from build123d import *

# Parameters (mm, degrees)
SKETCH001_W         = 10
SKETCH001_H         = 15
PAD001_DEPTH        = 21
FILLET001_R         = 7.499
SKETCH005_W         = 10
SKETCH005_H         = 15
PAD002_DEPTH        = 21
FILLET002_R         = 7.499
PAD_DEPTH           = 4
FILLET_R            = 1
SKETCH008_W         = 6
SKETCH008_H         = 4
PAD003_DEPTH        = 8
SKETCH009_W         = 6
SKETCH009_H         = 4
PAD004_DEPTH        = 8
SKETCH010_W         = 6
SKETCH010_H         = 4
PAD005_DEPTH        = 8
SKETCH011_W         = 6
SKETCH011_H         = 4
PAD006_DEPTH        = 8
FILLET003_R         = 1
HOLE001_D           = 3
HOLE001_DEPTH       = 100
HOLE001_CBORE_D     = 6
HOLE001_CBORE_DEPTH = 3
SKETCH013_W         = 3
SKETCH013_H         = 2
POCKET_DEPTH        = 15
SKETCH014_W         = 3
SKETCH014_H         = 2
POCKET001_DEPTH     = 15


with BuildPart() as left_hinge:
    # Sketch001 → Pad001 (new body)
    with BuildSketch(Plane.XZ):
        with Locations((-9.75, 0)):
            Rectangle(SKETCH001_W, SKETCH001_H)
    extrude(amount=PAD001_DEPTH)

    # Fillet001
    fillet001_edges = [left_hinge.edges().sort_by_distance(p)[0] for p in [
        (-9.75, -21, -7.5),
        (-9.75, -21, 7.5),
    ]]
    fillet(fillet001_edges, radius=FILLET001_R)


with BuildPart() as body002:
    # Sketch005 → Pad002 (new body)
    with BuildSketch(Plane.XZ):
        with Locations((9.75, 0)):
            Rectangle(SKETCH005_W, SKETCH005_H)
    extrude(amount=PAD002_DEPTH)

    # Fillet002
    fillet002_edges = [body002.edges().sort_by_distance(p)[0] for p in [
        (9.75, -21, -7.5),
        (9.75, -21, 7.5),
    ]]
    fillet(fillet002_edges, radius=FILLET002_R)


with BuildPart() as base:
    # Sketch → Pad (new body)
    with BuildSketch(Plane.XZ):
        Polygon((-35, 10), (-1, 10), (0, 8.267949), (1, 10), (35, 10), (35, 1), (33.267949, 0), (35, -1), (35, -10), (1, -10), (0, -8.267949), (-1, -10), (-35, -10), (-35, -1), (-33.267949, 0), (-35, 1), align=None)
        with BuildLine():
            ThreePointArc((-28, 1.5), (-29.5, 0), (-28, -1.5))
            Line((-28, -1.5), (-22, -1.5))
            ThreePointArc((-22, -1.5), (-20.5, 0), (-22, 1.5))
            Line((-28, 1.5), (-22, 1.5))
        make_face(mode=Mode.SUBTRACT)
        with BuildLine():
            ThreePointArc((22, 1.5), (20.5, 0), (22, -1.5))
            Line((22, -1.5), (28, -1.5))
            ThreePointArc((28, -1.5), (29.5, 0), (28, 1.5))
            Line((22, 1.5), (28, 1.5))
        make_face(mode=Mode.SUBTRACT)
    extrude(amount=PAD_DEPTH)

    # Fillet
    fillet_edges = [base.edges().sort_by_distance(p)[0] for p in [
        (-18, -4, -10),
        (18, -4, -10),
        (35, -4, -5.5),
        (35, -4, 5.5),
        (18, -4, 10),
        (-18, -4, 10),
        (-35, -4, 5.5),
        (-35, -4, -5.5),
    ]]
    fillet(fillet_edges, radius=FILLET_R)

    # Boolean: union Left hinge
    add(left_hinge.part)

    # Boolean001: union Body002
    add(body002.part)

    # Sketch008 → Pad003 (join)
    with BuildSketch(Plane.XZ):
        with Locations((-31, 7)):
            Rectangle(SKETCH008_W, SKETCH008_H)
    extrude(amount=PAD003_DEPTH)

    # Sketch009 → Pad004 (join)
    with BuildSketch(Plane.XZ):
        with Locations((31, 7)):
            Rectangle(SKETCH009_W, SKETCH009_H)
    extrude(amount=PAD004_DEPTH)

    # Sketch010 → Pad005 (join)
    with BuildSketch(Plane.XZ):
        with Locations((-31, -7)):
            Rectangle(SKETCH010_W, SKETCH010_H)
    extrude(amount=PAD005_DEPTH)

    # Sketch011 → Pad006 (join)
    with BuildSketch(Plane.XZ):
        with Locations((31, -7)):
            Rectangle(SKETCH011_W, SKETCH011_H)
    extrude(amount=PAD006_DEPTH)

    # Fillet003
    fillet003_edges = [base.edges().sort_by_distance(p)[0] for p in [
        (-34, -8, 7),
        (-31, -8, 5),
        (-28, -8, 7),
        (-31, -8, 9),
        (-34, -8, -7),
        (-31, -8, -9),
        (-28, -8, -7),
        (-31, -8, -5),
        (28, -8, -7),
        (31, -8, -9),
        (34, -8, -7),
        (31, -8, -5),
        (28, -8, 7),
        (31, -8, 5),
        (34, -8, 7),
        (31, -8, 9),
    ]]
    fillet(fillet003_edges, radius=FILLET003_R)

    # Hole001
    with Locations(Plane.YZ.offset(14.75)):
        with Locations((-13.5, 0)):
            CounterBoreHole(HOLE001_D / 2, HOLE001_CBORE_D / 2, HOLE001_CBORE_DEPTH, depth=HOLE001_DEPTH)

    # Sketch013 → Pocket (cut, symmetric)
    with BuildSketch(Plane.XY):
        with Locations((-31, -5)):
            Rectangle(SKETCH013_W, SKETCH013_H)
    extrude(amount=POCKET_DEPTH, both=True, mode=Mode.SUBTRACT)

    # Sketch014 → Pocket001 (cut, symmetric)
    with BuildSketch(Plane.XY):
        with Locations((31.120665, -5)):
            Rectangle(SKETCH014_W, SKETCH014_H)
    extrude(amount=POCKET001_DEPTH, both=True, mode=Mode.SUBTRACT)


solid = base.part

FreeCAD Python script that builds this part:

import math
import FreeCAD as App
import Part
import Sketcher
Q = App.Units.Quantity


def edges_at(feature, points):
    """Names of the edges that pass closest to the given points."""
    edges = feature.Shape.Edges
    near = lambda p: min(range(len(edges)), key=lambda i: edges[i].distToShape(Part.Vertex(*p))[0])
    return sorted({f"Edge{near(p) + 1}" for p in points})


def add_polygon(sketch, points):
    """Adds a closed chain of lines whose ends are joined by coincident constraints."""
    first, n = sketch.GeometryCount, len(points)
    for a, b in zip(points, points[1:] + points[:1]):
        sketch.addGeometry(Part.LineSegment(App.Vector(*a, 0), App.Vector(*b, 0)), False)
    for i in range(n):
        sketch.addConstraint(Sketcher.Constraint("Coincident", first + i, 2, first + (i + 1) % n, 1))

doc = App.newDocument("Part")
body = doc.addObject("PartDesign::Body", "Body")

sketch1 = body.newObject("Sketcher::SketchObject", "Sketch")
sketch1.AttachmentSupport = (doc.getObject("XZ_Plane"), [""])
sketch1.MapMode = "FlatFace"
add_polygon(sketch1, [(-14.75, 7.5), (-14.75, -7.5), (-4.75, -7.5), (-4.75, 7.5)])
sketch1.addConstraint([
    Sketcher.Constraint("Vertical", 0),
    Sketcher.Constraint("Horizontal", 1),
    Sketcher.Constraint("Vertical", 2),
    Sketcher.Constraint("Horizontal", 3),
    Sketcher.Constraint("DistanceX", 1, 1, 1, 2, Q("10 mm")),
    Sketcher.Constraint("DistanceY", 0, 2, 0, 1, Q("15 mm")),
    Sketcher.Constraint("DistanceY", 0, 2, -1, 1, Q("7.5 mm")),
    Sketcher.Constraint("DistanceX", 0, 2, -1, 1, Q("14.75 mm")),
])
pad1 = body.newObject("PartDesign::Pad", "Pad")
pad1.Profile = sketch1
pad1.Length = 21
doc.recompute()

fillet = body.newObject("PartDesign::Fillet", "Fillet")
fillet.Base = (pad1, edges_at(pad1, [(-9.75, -21, -7.5), (-9.75, -21, 7.5)]))
fillet.Radius = 7.499
body2 = doc.addObject("PartDesign::Body", "Body001")

sketch2 = body2.newObject("Sketcher::SketchObject", "Sketch001")
sketch2.AttachmentSupport = (doc.getObject("XZ_Plane001"), [""])
sketch2.MapMode = "FlatFace"
add_polygon(sketch2, [(4.75, 7.5), (4.75, -7.5), (14.75, -7.5), (14.75, 7.5)])
sketch2.addConstraint([
    Sketcher.Constraint("Vertical", 0),
    Sketcher.Constraint("Horizontal", 1),
    Sketcher.Constraint("Vertical", 2),
    Sketcher.Constraint("Horizontal", 3),
    Sketcher.Constraint("DistanceX", 1, 1, 1, 2, Q("10 mm")),
    Sketcher.Constraint("DistanceY", 0, 2, 0, 1, Q("15 mm")),
    Sketcher.Constraint("DistanceY", 0, 2, -1, 1, Q("7.5 mm")),
    Sketcher.Constraint("DistanceX", -1, 1, 0, 2, Q("4.75 mm")),
])
pad2 = body2.newObject("PartDesign::Pad", "Pad001")
pad2.Profile = sketch2
pad2.Length = 21
doc.recompute()

fillet2 = body2.newObject("PartDesign::Fillet", "Fillet001")
fillet2.Base = (pad2, edges_at(pad2, [(9.75, -21, -7.5), (9.75, -21, 7.5)]))
fillet2.Radius = 7.499
body3 = doc.addObject("PartDesign::Body", "Body002")

sketch3 = body3.newObject("Sketcher::SketchObject", "Sketch002")
sketch3.AttachmentSupport = (doc.getObject("XZ_Plane002"), [""])
sketch3.MapMode = "FlatFace"
add_polygon(sketch3, [(-1, 10), (-35, 10), (-35, 1), (-33.267949, 0), (-35, -1), (-35, -10), (-1, -10), (0, -8.267949), (1, -10), (35, -10), (35, -1), (33.267949, 0), (35, 1), (35, 10), (1, 10), (0, 8.267949)])
sketch3.addGeometry(Part.LineSegment(App.Vector(22, 1.5, 0), App.Vector(28, 1.5, 0)), False)
sketch3.addGeometry(Part.ArcOfCircle(Part.Circle(App.Vector(28, 0, 0), App.Vector(0, 0, 1), 1.5), math.radians(-90), math.radians(90)), False)
sketch3.addGeometry(Part.LineSegment(App.Vector(28, -1.5, 0), App.Vector(22, -1.5, 0)), False)
sketch3.addGeometry(Part.ArcOfCircle(Part.Circle(App.Vector(22, 0, 0), App.Vector(0, 0, 1), 1.5), math.radians(90), math.radians(270)), False)
sketch3.addGeometry(Part.LineSegment(App.Vector(-28, 1.5, 0), App.Vector(-22, 1.5, 0)), False)
sketch3.addGeometry(Part.ArcOfCircle(Part.Circle(App.Vector(-22, 0, 0), App.Vector(0, 0, 1), 1.5), math.radians(-90), math.radians(90)), False)
sketch3.addGeometry(Part.LineSegment(App.Vector(-22, -1.5, 0), App.Vector(-28, -1.5, 0)), False)
sketch3.addGeometry(Part.ArcOfCircle(Part.Circle(App.Vector(-28, 0, 0), App.Vector(0, 0, 1), 1.5), math.radians(90), math.radians(270)), False)
sketch3.addConstraint([
    Sketcher.Constraint("Tangent", 16, 2, 17, 2),
    Sketcher.Constraint("Tangent", 17, 1, 18, 1),
    Sketcher.Constraint("Tangent", 18, 2, 19, 2),
    Sketcher.Constraint("Tangent", 19, 1, 16, 1),
    Sketcher.Constraint("Tangent", 20, 2, 21, 2),
    Sketcher.Constraint("Tangent", 21, 1, 22, 1),
    Sketcher.Constraint("Tangent", 22, 2, 23, 2),
    Sketcher.Constraint("Tangent", 23, 1, 20, 1),
    Sketcher.Constraint("Horizontal", 0),
    Sketcher.Constraint("Vertical", 1),
    Sketcher.Constraint("Vertical", 4),
    Sketcher.Constraint("Horizontal", 5),
    Sketcher.Constraint("Horizontal", 8),
    Sketcher.Constraint("Vertical", 9),
    Sketcher.Constraint("Vertical", 12),
    Sketcher.Constraint("Horizontal", 13),
    Sketcher.Constraint("Horizontal", 16),
    Sketcher.Constraint("Horizontal", 18),
    Sketcher.Constraint("Horizontal", 20),
    Sketcher.Constraint("Horizontal", 22),
    Sketcher.Constraint("Equal", 19, 21),
    Sketcher.Constraint("Symmetric", 19, 3, 21, 3, -1, 1),
    Sketcher.Constraint("Symmetric", 0, 2, 8, 2, -1, 1),
    Sketcher.Constraint("Symmetric", 2, 2, 10, 2, -1, 1),
    Sketcher.Constraint("Symmetric", 3, 2, 11, 2, -1, 1),
    Sketcher.Constraint("Symmetric", 5, 2, 13, 2, -1, 1),
    Sketcher.Constraint("Symmetric", 6, 2, 14, 2, -1, 1),
    Sketcher.Constraint("Symmetric", 17, 3, 23, 3, -2),
    Sketcher.Constraint("Symmetric", 5, 2, 7, 2, -2),
    Sketcher.Constraint("Symmetric", 3, 2, 9, 2, -2),
    Sketcher.Constraint("PointOnObject", 2, 2, -1),
    Sketcher.Constraint("PointOnObject", 6, 2, -2),
    Sketcher.Constraint("Perpendicular", 2, 6),
    Sketcher.Constraint("Perpendicular", 3, 7),
    Sketcher.Constraint("Perpendicular", 11, 15),
    Sketcher.Constraint("Equal", 3, 6),
    Sketcher.Constraint("Radius", 17, Q("1.5 mm")),
    Sketcher.Constraint("DistanceX", 0, 2, 0, 1, Q("34 mm")),
    Sketcher.Constraint("DistanceX", 16, 1, 16, 2, Q("6 mm")),
    Sketcher.Constraint("DistanceY", 1, 2, 1, 1, Q("9 mm")),
    Sketcher.Constraint("Angle", 2, Q("-29.999997 deg")),
    Sketcher.Constraint("Distance", 2, Q("2 mm")),
    Sketcher.Constraint("DistanceX", -1, 1, 17, 3, Q("28 mm")),
])
pad3 = body3.newObject("PartDesign::Pad", "Pad002")
pad3.Profile = sketch3
pad3.Length = 4
doc.recompute()

fillet3 = body3.newObject("PartDesign::Fillet", "Fillet002")
fillet3.Base = (pad3, edges_at(pad3, [
    (-18, -4, -10),
    (18, -4, -10),
    (35, -4, -5.5),
    (35, -4, 5.5),
    (18, -4, 10),
    (-18, -4, 10),
    (-35, -4, 5.5),
    (-35, -4, -5.5),
]))
fillet3.Radius = 1
doc.recompute()

boolean = body3.newObject("PartDesign::Boolean", "Boolean")
boolean.Type = "Fuse"
boolean.addObjects([body])
doc.recompute()

boolean2 = body3.newObject("PartDesign::Boolean", "Boolean001")
boolean2.Type = "Fuse"
boolean2.addObjects([body2])

sketch4 = body3.newObject("Sketcher::SketchObject", "Sketch003")
sketch4.AttachmentSupport = (doc.getObject("XZ_Plane002"), [""])
sketch4.MapMode = "FlatFace"
add_polygon(sketch4, [(-34, 9), (-34, 5), (-28, 5), (-28, 9)])
sketch4.addConstraint([
    Sketcher.Constraint("Vertical", 0),
    Sketcher.Constraint("Horizontal", 1),
    Sketcher.Constraint("Vertical", 2),
    Sketcher.Constraint("Horizontal", 3),
    Sketcher.Constraint("DistanceX", 1, 1, 1, 2, Q("6 mm")),
    Sketcher.Constraint("DistanceY", 0, 2, 0, 1, Q("4 mm")),
    Sketcher.Constraint("DistanceX", 0, 2, -1, 1, Q("34 mm")),
    Sketcher.Constraint("DistanceY", -1, 1, 0, 2, Q("5 mm")),
])
pad4 = body3.newObject("PartDesign::Pad", "Pad003")
pad4.Profile = sketch4
pad4.Length = 8

sketch5 = body3.newObject("Sketcher::SketchObject", "Sketch004")
sketch5.AttachmentSupport = (doc.getObject("XZ_Plane002"), [""])
sketch5.MapMode = "FlatFace"
add_polygon(sketch5, [(28, 9), (28, 5), (34, 5), (34, 9)])
sketch5.addConstraint([
    Sketcher.Constraint("Vertical", 0),
    Sketcher.Constraint("Horizontal", 1),
    Sketcher.Constraint("Vertical", 2),
    Sketcher.Constraint("Horizontal", 3),
    Sketcher.Constraint("DistanceX", 1, 1, 1, 2, Q("6 mm")),
    Sketcher.Constraint("DistanceY", 0, 2, 0, 1, Q("4 mm")),
    Sketcher.Constraint("DistanceX", -1, 1, 0, 2, Q("28 mm")),
    Sketcher.Constraint("DistanceY", -1, 1, 0, 2, Q("5 mm")),
])
pad5 = body3.newObject("PartDesign::Pad", "Pad004")
pad5.Profile = sketch5
pad5.Length = 8

sketch6 = body3.newObject("Sketcher::SketchObject", "Sketch005")
sketch6.AttachmentSupport = (doc.getObject("XZ_Plane002"), [""])
sketch6.MapMode = "FlatFace"
add_polygon(sketch6, [(-34, -5), (-34, -9), (-28, -9), (-28, -5)])
sketch6.addConstraint([
    Sketcher.Constraint("Vertical", 0),
    Sketcher.Constraint("Horizontal", 1),
    Sketcher.Constraint("Vertical", 2),
    Sketcher.Constraint("Horizontal", 3),
    Sketcher.Constraint("DistanceX", 1, 1, 1, 2, Q("6 mm")),
    Sketcher.Constraint("DistanceY", 0, 2, 0, 1, Q("4 mm")),
    Sketcher.Constraint("DistanceX", 0, 2, -1, 1, Q("34 mm")),
    Sketcher.Constraint("DistanceY", 0, 2, -1, 1, Q("9 mm")),
])
pad6 = body3.newObject("PartDesign::Pad", "Pad005")
pad6.Profile = sketch6
pad6.Length = 8

sketch7 = body3.newObject("Sketcher::SketchObject", "Sketch006")
sketch7.AttachmentSupport = (doc.getObject("XZ_Plane002"), [""])
sketch7.MapMode = "FlatFace"
add_polygon(sketch7, [(28, -5), (28, -9), (34, -9), (34, -5)])
sketch7.addConstraint([
    Sketcher.Constraint("Vertical", 0),
    Sketcher.Constraint("Horizontal", 1),
    Sketcher.Constraint("Vertical", 2),
    Sketcher.Constraint("Horizontal", 3),
    Sketcher.Constraint("DistanceX", 1, 1, 1, 2, Q("6 mm")),
    Sketcher.Constraint("DistanceY", 0, 2, 0, 1, Q("4 mm")),
    Sketcher.Constraint("DistanceX", -1, 1, 0, 2, Q("28 mm")),
    Sketcher.Constraint("DistanceY", 0, 2, -1, 1, Q("9 mm")),
])
pad7 = body3.newObject("PartDesign::Pad", "Pad006")
pad7.Profile = sketch7
pad7.Length = 8
doc.recompute()

fillet4 = body3.newObject("PartDesign::Fillet", "Fillet003")
fillet4.Base = (pad7, edges_at(pad7, [
    (-34, -8, 7),
    (-31, -8, 5),
    (-28, -8, 7),
    (-31, -8, 9),
    (-34, -8, -7),
    (-31, -8, -9),
    (-28, -8, -7),
    (-31, -8, -5),
    (28, -8, -7),
    (31, -8, -9),
    (34, -8, -7),
    (31, -8, -5),
    (28, -8, 7),
    (31, -8, 5),
    (34, -8, 7),
    (31, -8, 9),
]))
fillet4.Radius = 1

sketch8 = body3.newObject("Sketcher::SketchObject", "Sketch007")
sketch8.AttachmentSupport = (doc.getObject("YZ_Plane002"), [""])
sketch8.MapMode = "FlatFace"
sketch8.AttachmentOffset = App.Placement(App.Vector(0, 0, 14.75), App.Rotation())
sketch8.addGeometry(Part.Circle(App.Vector(-13.5, 0, 0), App.Vector(0, 0, 1), 1.5), False)
sketch8.addConstraint([
    Sketcher.Constraint("PointOnObject", 0, 3, -1),
    Sketcher.Constraint("Diameter", 0, Q("3 mm")),
    Sketcher.Constraint("DistanceX", 0, 3, -1, 1, Q("13.5 mm")),
])
doc.recompute()
hole = body3.newObject("PartDesign::Hole", "Hole")
hole.Profile = sketch8
hole.ThreadType = "None"
hole.Diameter = 3
hole.DepthType = "Dimension"
hole.Depth = 100
hole.DrillPoint = "Flat"
hole.HoleCutType = "Counterbore"
hole.HoleCutDiameter = 6
hole.HoleCutDepth = 3

sketch9 = body3.newObject("Sketcher::SketchObject", "Sketch008")
sketch9.AttachmentSupport = (doc.getObject("XY_Plane002"), [""])
sketch9.MapMode = "FlatFace"
add_polygon(sketch9, [(-32.5, -4), (-32.5, -6), (-29.5, -6), (-29.5, -4)])
sketch9.addConstraint([
    Sketcher.Constraint("Vertical", 0),
    Sketcher.Constraint("Horizontal", 1),
    Sketcher.Constraint("Vertical", 2),
    Sketcher.Constraint("Horizontal", 3),
    Sketcher.Constraint("DistanceX", 1, 1, 1, 2, Q("3 mm")),
    Sketcher.Constraint("DistanceY", 0, 2, 0, 1, Q("2 mm")),
    Sketcher.Constraint("DistanceY", 0, 2, -1, 1, Q("6 mm")),
    Sketcher.Constraint("DistanceX", 0, 2, -1, 1, Q("32.5 mm")),
])
pocket1 = body3.newObject("PartDesign::Pocket", "Pocket")
pocket1.Profile = sketch9
pocket1.Length = 30
pocket1.Midplane = True

sketch10 = body3.newObject("Sketcher::SketchObject", "Sketch009")
sketch10.AttachmentSupport = (doc.getObject("XY_Plane002"), [""])
sketch10.MapMode = "FlatFace"
add_polygon(sketch10, [(29.620665, -4), (29.620665, -6), (32.620665, -6), (32.620665, -4)])
sketch10.addConstraint([
    Sketcher.Constraint("Vertical", 0),
    Sketcher.Constraint("Horizontal", 1),
    Sketcher.Constraint("Vertical", 2),
    Sketcher.Constraint("Horizontal", 3),
    Sketcher.Constraint("DistanceX", 1, 1, 1, 2, Q("3 mm")),
    Sketcher.Constraint("DistanceY", 0, 2, 0, 1, Q("2 mm")),
    Sketcher.Constraint("DistanceY", 0, 2, -1, 1, Q("6 mm")),
    Sketcher.Constraint("DistanceX", -1, 1, 0, 2, Q("29.620665 mm")),
])
pocket2 = body3.newObject("PartDesign::Pocket", "Pocket001")
pocket2.Profile = sketch10
pocket2.Length = 30
pocket2.Midplane = True

doc.recompute()
